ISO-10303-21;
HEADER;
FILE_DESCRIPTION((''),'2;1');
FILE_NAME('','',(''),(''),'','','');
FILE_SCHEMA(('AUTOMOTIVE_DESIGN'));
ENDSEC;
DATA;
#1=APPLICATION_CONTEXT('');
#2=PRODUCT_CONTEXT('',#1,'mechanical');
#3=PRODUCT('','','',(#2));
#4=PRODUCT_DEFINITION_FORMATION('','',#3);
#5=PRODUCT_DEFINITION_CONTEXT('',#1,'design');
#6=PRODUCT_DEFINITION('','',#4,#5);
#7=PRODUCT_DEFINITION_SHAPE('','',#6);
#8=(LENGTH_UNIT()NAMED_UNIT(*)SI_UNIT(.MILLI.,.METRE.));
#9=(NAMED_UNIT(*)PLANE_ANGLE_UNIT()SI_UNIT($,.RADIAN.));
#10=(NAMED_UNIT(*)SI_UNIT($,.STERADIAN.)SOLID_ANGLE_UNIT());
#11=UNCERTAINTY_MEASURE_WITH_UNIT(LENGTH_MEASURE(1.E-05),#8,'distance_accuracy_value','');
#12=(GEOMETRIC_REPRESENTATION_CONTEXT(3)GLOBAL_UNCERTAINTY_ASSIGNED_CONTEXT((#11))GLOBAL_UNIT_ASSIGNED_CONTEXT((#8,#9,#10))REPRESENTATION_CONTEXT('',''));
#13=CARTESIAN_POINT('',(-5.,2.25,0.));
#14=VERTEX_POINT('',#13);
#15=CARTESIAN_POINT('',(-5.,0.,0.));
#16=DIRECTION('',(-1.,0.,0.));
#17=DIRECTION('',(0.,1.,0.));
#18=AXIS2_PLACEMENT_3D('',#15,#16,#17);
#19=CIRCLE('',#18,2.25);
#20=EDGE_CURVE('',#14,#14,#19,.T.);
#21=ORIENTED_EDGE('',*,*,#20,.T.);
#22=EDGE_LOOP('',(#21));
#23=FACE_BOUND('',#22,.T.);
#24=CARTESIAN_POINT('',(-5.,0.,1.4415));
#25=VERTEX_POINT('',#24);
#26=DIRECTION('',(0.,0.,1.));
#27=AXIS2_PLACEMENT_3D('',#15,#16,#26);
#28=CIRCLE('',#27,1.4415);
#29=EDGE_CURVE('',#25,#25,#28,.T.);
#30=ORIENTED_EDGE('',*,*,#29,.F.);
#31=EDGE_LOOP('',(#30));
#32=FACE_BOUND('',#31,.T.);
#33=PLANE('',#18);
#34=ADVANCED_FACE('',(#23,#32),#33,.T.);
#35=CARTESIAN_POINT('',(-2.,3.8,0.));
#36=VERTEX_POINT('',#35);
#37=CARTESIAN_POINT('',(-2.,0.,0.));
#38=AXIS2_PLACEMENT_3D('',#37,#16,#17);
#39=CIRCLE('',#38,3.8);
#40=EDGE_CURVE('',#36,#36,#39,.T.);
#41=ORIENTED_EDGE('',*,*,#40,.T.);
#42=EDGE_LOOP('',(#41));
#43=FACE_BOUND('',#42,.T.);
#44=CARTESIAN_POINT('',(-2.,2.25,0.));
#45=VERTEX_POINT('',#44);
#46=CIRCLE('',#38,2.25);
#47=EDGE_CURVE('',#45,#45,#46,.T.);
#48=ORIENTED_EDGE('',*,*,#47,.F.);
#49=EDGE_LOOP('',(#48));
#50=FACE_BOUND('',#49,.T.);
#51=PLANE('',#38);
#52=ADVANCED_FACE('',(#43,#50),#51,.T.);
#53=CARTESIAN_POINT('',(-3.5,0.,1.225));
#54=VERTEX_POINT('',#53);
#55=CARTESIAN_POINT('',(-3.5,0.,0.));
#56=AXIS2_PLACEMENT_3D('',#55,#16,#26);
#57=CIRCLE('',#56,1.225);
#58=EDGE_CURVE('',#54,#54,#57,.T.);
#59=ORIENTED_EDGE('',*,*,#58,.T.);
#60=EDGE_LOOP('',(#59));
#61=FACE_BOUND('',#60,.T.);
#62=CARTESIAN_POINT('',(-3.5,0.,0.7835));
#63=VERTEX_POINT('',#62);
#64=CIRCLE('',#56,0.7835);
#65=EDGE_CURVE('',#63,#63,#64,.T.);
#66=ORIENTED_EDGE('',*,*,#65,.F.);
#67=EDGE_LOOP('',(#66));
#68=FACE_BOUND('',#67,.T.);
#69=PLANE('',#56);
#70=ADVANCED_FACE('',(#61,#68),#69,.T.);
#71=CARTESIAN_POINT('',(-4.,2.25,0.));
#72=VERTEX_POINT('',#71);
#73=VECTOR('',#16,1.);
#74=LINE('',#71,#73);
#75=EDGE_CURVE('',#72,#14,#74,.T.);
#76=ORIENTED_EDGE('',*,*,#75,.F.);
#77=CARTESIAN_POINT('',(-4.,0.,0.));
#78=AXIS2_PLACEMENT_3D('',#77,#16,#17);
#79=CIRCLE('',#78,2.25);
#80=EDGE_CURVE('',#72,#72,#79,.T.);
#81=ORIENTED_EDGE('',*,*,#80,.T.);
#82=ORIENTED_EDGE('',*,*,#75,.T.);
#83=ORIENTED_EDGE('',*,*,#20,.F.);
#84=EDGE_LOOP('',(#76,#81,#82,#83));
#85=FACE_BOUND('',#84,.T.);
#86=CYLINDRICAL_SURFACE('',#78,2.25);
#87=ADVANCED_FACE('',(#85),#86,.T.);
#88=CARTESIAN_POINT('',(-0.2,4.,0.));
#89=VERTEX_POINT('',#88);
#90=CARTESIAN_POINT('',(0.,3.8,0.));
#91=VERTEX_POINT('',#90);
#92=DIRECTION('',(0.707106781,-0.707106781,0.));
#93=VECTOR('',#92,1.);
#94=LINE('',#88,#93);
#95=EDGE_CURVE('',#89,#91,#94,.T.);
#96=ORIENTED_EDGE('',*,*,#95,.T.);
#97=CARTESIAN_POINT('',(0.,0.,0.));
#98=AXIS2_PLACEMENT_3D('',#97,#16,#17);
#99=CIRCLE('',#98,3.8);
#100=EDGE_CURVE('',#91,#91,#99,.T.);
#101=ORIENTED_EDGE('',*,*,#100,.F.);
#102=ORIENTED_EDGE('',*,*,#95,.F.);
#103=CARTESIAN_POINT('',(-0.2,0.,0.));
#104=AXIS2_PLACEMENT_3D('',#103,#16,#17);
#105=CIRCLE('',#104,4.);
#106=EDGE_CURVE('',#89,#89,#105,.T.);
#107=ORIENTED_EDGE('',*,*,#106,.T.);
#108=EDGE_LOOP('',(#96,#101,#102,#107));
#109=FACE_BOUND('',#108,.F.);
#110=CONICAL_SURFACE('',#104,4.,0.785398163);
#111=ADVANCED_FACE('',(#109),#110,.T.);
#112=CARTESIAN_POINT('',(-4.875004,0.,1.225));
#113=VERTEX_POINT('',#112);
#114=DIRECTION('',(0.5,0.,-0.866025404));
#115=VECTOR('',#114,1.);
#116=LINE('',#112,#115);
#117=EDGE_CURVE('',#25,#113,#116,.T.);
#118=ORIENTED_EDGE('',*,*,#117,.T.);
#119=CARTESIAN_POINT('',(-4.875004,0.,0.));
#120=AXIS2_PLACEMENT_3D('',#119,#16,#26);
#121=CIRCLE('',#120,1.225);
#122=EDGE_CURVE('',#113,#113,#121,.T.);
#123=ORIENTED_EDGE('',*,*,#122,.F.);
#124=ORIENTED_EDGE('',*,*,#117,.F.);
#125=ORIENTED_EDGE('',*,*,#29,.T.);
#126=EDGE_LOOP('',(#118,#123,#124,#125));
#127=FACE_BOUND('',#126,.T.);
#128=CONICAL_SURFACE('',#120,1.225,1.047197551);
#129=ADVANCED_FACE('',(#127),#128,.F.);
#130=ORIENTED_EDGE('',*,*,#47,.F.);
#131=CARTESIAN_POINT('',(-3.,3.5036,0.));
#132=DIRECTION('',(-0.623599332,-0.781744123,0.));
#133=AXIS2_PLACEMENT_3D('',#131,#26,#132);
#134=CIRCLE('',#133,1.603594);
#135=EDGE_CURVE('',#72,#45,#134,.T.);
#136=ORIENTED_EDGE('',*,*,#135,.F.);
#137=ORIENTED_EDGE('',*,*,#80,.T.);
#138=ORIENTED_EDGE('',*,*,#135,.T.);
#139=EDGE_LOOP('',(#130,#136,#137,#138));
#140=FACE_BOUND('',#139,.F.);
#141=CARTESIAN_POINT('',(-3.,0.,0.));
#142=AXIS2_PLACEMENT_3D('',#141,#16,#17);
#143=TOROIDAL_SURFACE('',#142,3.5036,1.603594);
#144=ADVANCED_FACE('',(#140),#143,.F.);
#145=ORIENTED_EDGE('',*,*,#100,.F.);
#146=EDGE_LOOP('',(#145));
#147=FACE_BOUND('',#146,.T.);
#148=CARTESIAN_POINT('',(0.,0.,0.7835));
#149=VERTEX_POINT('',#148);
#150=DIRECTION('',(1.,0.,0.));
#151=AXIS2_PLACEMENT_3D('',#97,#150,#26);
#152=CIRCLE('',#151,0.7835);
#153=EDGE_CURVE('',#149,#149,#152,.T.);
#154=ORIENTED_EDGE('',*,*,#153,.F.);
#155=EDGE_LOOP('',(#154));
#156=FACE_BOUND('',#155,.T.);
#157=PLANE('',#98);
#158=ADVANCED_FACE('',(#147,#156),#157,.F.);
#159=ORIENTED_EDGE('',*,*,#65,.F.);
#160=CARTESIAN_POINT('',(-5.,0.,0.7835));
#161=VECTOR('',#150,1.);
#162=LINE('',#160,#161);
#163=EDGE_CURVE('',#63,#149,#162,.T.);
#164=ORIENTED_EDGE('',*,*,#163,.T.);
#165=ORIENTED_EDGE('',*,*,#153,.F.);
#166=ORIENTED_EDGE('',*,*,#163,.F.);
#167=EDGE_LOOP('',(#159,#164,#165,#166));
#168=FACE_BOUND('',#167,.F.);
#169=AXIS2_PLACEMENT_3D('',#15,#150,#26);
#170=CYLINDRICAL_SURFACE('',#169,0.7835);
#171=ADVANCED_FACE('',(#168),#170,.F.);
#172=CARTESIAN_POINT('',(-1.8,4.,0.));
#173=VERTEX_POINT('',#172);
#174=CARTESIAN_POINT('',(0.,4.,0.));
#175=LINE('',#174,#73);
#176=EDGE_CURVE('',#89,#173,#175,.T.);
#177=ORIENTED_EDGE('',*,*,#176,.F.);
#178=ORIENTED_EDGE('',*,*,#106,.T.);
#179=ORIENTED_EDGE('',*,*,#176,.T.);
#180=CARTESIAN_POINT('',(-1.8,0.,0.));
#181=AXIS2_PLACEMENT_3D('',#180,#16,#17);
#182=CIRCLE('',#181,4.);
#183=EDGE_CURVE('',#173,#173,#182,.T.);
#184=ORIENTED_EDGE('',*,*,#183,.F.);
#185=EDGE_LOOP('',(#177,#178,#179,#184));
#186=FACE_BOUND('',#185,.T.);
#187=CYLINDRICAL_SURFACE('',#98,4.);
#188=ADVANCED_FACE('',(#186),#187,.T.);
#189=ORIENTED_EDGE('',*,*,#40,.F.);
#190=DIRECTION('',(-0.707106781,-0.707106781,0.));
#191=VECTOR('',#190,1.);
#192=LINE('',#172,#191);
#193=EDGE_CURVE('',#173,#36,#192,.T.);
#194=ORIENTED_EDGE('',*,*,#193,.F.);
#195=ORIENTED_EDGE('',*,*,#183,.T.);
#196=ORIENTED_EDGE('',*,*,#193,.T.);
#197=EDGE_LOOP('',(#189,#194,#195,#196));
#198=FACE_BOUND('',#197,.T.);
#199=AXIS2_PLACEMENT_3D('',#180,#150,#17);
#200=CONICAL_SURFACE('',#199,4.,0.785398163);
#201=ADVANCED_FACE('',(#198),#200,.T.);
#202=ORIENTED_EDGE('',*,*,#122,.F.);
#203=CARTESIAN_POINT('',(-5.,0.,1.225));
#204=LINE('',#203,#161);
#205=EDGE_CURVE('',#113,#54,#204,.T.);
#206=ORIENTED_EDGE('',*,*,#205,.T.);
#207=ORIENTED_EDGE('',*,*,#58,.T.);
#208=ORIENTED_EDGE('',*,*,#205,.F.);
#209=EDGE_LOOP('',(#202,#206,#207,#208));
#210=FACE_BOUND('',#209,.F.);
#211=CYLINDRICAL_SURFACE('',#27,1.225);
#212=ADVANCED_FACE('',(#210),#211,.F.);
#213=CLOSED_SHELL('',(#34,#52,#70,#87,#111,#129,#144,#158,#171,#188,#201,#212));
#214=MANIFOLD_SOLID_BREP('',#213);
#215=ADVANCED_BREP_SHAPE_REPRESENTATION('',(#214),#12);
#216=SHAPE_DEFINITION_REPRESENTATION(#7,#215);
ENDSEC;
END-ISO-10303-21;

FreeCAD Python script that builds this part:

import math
import FreeCAD as App
import Part
import Sketcher


def edges_at(feature, points):
    """Names of the edges that pass closest to the given points."""
    edges = feature.Shape.Edges
    near = lambda p: min(range(len(edges)), key=lambda i: edges[i].distToShape(Part.Vertex(*p))[0])
    return sorted({f"Edge{near(p) + 1}" for p in points})

doc = App.newDocument("Part")
body = doc.addObject("PartDesign::Body", "Body")

sketch1 = body.newObject("Sketcher::SketchObject", "Sketch")
sketch1.AttachmentSupport = (doc.getObject("XY_Plane"), [""])
sketch1.MapMode = "FlatFace"
sketch1.addGeometry([
    Part.LineSegment(App.Vector(-5, 0, 0), App.Vector(0, 0, 0)),
    Part.LineSegment(App.Vector(0, 0, 0), App.Vector(0, 4, 0)),
    Part.LineSegment(App.Vector(0, 4, 0), App.Vector(-2, 4, 0)),
    Part.LineSegment(App.Vector(-2, 4, 0), App.Vector(-2, 2.2, 0)),
    Part.ArcOfCircle(Part.Circle(App.Vector(-3, 3.5, 0), App.Vector(0, 0, 1), 1.6), math.radians(-129), math.radians(-51)),
    Part.LineSegment(App.Vector(-4, 2.2, 0), App.Vector(-5, 2.2, 0)),
    Part.LineSegment(App.Vector(-5, 2.2, 0), App.Vector(-5, 0, 0)),
], False)
sketch1.addConstraint([
    Sketcher.Constraint("Coincident", 0, 2, 1, 1),
    Sketcher.Constraint("Coincident", 1, 2, 2, 1),
    Sketcher.Constraint("Coincident", 2, 2, 3, 1),
    Sketcher.Constraint("Coincident", 3, 2, 4, 2),
    Sketcher.Constraint("Coincident", 4, 1, 5, 1),
    Sketcher.Constraint("Coincident", 5, 2, 6, 1),
    Sketcher.Constraint("Coincident", 6, 2, 0, 1),
    Sketcher.Constraint("Horizontal", 0),
    Sketcher.Constraint("Vertical", 1),
    Sketcher.Constraint("Horizontal", 2),
    Sketcher.Constraint("Vertical", 3),
    Sketcher.Constraint("Horizontal", 5),
    Sketcher.Constraint("Vertical", 6),
    Sketcher.Constraint("Coincident", 0, 2, -1, 1),
    Sketcher.Constraint("Horizontal", 3, 2, 4, 1),
    Sketcher.Constraint("DistanceX", 0, 1, 0, 2, 5.0),
    Sketcher.Constraint("DistanceX", 2, 2, 2, 1, 2.0),
    Sketcher.Constraint("DistanceX", 5, 2, 5, 1, 1.0),
    Sketcher.Constraint("DistanceY", 1, 1, 1, 2, 4.0),
    Sketcher.Constraint("DistanceY", 3, 2, 3, 1, 1.75),
    Sketcher.Constraint("Radius", 4, 1.6036),
])
revolution = body.newObject("PartDesign::Revolution", "Revolution")
revolution.Profile = sketch1
revolution.ReferenceAxis = (sketch1, ["H_Axis"])
revolution.Angle = 360
doc.recompute()

chamfer = body.newObject("PartDesign::Chamfer", "Chamfer")
chamfer.Base = (revolution, edges_at(revolution, [(0, -4, 0)]))
chamfer.Size = 0.2
doc.recompute()

chamfer2 = body.newObject("PartDesign::Chamfer", "Chamfer001")
chamfer2.Base = (chamfer, edges_at(chamfer, [(-2, -4, 0)]))
chamfer2.Size = 0.2

sketch2 = body.newObject("Sketcher::SketchObject", "Sketch001")
sketch2.AttachmentSupport = (doc.getObject("YZ_Plane"), [""])
sketch2.MapMode = "FlatFace"
sketch2.AttachmentOffset = App.Placement(App.Vector(0, 0, -5), App.Rotation())
sketch2.addGeometry(Part.Circle(App.Vector(0, 0, 0), App.Vector(0, 0, 1), 0.8), False)
sketch2.addConstraint([
    Sketcher.Constraint("Coincident", 0, 3, -1, 1),
    Sketcher.Constraint("Diameter", 0, 1.567),
])
doc.recompute()
hole = body.newObject("PartDesign::Hole", "Hole")
hole.Profile = sketch2
hole.ThreadType = "None"
hole.Diameter = 1.567
hole.DepthType = "ThroughAll"
hole.Reversed = True

sketch3 = body.newObject("Sketcher::SketchObject", "Sketch002")
sketch3.AttachmentSupport = (doc.getObject("YZ_Plane"), [""])
sketch3.MapMode = "FlatFace"
sketch3.AttachmentOffset = App.Placement(App.Vector(0, 0, -5), App.Rotation())
sketch3.addGeometry([
    Part.Circle(App.Vector(0, 0, 0), App.Vector(0, 0, 1), 1.2),
    Part.Circle(App.Vector(0, 0, 0), App.Vector(0, 0, 1), 0.8),
], False)
sketch3.addConstraint([
    Sketcher.Constraint("Coincident", 0, 3, -1, 1),
    Sketcher.Constraint("Coincident", 1, 3, -1, 1),
    Sketcher.Constraint("Diameter", 0, 2.45),
    Sketcher.Constraint("Diameter", 1, 1.567),
])
pocket1 = body.newObject("PartDesign::Pocket", "Pocket")
pocket1.Profile = sketch3
pocket1.Length = 1.5
pocket1.Reversed = True
doc.recompute()

chamfer3 = body.newObject("PartDesign::Chamfer", "Chamfer002")
chamfer3.Base = (pocket1, edges_at(pocket1, [(-5, 0, -1.225)]))
chamfer3.ChamferType = "Distance and Angle"
chamfer3.Size = 0.2165
chamfer3.Angle = 30

doc.recompute()
